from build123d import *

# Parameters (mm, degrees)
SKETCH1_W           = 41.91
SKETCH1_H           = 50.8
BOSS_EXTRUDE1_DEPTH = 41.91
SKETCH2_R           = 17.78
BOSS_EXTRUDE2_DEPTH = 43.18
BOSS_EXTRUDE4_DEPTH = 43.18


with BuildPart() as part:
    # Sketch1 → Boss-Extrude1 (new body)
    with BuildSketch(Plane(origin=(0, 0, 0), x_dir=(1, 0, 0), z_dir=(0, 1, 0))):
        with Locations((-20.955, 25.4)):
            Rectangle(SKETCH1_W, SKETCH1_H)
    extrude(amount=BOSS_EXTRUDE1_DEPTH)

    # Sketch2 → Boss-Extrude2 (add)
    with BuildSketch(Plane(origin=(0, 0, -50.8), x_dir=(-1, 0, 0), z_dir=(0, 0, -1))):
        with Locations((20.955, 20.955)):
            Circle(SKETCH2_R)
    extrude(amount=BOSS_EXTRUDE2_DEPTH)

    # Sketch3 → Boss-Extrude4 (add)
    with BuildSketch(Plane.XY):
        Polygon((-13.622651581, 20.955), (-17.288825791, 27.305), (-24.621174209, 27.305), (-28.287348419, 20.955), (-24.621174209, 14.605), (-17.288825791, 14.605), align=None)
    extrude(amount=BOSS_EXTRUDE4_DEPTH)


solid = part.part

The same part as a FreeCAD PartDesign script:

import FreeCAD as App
import Part
import Sketcher
from FreeCAD import Vector
Q = App.Units.Quantity

doc = App.newDocument("Part")
body = doc.addObject("PartDesign::Body", "Body")

# Sketch on XZ plane
sketch1 = body.newObject("Sketcher::SketchObject", "Sketch")
sketch1.AttachmentSupport = (doc.getObject("XZ_Plane"), [""])
sketch1.MapMode = "FlatFace"
sketch1.addGeometry([
    Part.LineSegment(Vector(-42, -51, 0), Vector(-42, 0, 0)),
    Part.LineSegment(Vector(-42, 0, 0), Vector(0, 0, 0)),
    Part.LineSegment(Vector(0, 0, 0), Vector(0, -51, 0)),
    Part.LineSegment(Vector(0, -51, 0), Vector(-42, -51, 0)),
], False)
sketch1.addConstraint([
    Sketcher.Constraint("Coincident", 0, 2, 1, 1),
    Sketcher.Constraint("Coincident", 1, 2, 2, 1),
    Sketcher.Constraint("Coincident", 2, 2, 3, 1),
    Sketcher.Constraint("Coincident", 3, 2, 0, 1),
    Sketcher.Constraint("Vertical", 0),
    Sketcher.Constraint("Horizontal", 1),
    Sketcher.Constraint("Vertical", 2),
    Sketcher.Constraint("Horizontal", 3),
    Sketcher.Constraint("Coincident", 1, 2, -1, 1),
    Sketcher.Constraint("DistanceY", 0, 1, 0, 2, Q("2 in")),
    Sketcher.Constraint("DistanceX", 1, 1, 1, 2, Q("1.65 in")),
])
pad1 = body.newObject("PartDesign::Pad", "Pad")
pad1.Profile = sketch1
pad1.Length = Q("1.65 in")
pad1.Reversed = True

# Sketch on XY plane
sketch2 = body.newObject("Sketcher::SketchObject", "Sketch001")
sketch2.AttachmentSupport = (doc.getObject("XY_Plane"), [""])
sketch2.MapMode = "FlatFace"
sketch2.AttachmentOffset = App.Placement(Vector(0, 0, -2 * 25.4), App.Rotation())
sketch2.addGeometry(Part.Circle(Vector(-21, 21, 0), Vector(0, 0, 1), 18), False)
sketch2.addConstraint([
    Sketcher.Constraint("Diameter", 0, Q("1.4 in")),
    Sketcher.Constraint("DistanceX", 0, 3, -1, 1, Q("0.825 in")),
    Sketcher.Constraint("DistanceY", -1, 1, 0, 3, Q("0.825 in")),
])
pad2 = body.newObject("PartDesign::Pad", "Pad001")
pad2.Profile = sketch2
pad2.Length = Q("1.7 in")
pad2.Reversed = True

# Sketch on XY plane
sketch3 = body.newObject("Sketcher::SketchObject", "Sketch002")
sketch3.AttachmentSupport = (doc.getObject("XY_Plane"), [""])
sketch3.MapMode = "FlatFace"
sketch3.addGeometry([
    Part.LineSegment(Vector(-14, 21, 0), Vector(-17, 27, 0)),  # 0
    Part.LineSegment(Vector(-17, 27, 0), Vector(-25, 27, 0)),  # 1
    Part.LineSegment(Vector(-25, 27, 0), Vector(-28, 21, 0)),  # 2
    Part.LineSegment(Vector(-28, 21, 0), Vector(-25, 15, 0)),  # 3
    Part.LineSegment(Vector(-25, 15, 0), Vector(-17, 15, 0)),  # 4
    Part.LineSegment(Vector(-17, 15, 0), Vector(-14, 21, 0)),  # 5
], False)
sketch3.addConstraint([
    Sketcher.Constraint("Coincident", 0, 2, 1, 1),
    Sketcher.Constraint("Coincident", 1, 2, 2, 1),
    Sketcher.Constraint("Coincident", 2, 2, 3, 1),
    Sketcher.Constraint("Coincident", 3, 2, 4, 1),
    Sketcher.Constraint("Coincident", 4, 2, 5, 1),
    Sketcher.Constraint("Coincident", 5, 2, 0, 1),
    Sketcher.Constraint("Horizontal", 1),
    Sketcher.Constraint("Horizontal", 4),
    Sketcher.Constraint("Parallel", 0, 3),
    Sketcher.Constraint("Parallel", 2, 5),
    Sketcher.Constraint("Horizontal", 2, 2, 5, 2),
    Sketcher.Constraint("Vertical", 1, 2, 3, 2),
    Sketcher.Constraint("Vertical", 0, 2, 4, 2),
    Sketcher.Constraint("Angle", 0, Q("120 deg")),
    Sketcher.Constraint("DistanceY", 3, 2, 1, 2, Q("0.5 in")),
    Sketcher.Constraint("DistanceY", -1, 1, 0, 2, Q("1.075 in")),
    Sketcher.Constraint("DistanceX", 1, 2, 1, 1, Q("7.332348 mm")),
    Sketcher.Constraint("DistanceX", 2, 2, -1, 1, Q("28.287348 mm")),
])
pad3 = body.newObject("PartDesign::Pad", "Pad002")
pad3.Profile = sketch3
pad3.Length = Q("1.7 in")

doc.recompute()
